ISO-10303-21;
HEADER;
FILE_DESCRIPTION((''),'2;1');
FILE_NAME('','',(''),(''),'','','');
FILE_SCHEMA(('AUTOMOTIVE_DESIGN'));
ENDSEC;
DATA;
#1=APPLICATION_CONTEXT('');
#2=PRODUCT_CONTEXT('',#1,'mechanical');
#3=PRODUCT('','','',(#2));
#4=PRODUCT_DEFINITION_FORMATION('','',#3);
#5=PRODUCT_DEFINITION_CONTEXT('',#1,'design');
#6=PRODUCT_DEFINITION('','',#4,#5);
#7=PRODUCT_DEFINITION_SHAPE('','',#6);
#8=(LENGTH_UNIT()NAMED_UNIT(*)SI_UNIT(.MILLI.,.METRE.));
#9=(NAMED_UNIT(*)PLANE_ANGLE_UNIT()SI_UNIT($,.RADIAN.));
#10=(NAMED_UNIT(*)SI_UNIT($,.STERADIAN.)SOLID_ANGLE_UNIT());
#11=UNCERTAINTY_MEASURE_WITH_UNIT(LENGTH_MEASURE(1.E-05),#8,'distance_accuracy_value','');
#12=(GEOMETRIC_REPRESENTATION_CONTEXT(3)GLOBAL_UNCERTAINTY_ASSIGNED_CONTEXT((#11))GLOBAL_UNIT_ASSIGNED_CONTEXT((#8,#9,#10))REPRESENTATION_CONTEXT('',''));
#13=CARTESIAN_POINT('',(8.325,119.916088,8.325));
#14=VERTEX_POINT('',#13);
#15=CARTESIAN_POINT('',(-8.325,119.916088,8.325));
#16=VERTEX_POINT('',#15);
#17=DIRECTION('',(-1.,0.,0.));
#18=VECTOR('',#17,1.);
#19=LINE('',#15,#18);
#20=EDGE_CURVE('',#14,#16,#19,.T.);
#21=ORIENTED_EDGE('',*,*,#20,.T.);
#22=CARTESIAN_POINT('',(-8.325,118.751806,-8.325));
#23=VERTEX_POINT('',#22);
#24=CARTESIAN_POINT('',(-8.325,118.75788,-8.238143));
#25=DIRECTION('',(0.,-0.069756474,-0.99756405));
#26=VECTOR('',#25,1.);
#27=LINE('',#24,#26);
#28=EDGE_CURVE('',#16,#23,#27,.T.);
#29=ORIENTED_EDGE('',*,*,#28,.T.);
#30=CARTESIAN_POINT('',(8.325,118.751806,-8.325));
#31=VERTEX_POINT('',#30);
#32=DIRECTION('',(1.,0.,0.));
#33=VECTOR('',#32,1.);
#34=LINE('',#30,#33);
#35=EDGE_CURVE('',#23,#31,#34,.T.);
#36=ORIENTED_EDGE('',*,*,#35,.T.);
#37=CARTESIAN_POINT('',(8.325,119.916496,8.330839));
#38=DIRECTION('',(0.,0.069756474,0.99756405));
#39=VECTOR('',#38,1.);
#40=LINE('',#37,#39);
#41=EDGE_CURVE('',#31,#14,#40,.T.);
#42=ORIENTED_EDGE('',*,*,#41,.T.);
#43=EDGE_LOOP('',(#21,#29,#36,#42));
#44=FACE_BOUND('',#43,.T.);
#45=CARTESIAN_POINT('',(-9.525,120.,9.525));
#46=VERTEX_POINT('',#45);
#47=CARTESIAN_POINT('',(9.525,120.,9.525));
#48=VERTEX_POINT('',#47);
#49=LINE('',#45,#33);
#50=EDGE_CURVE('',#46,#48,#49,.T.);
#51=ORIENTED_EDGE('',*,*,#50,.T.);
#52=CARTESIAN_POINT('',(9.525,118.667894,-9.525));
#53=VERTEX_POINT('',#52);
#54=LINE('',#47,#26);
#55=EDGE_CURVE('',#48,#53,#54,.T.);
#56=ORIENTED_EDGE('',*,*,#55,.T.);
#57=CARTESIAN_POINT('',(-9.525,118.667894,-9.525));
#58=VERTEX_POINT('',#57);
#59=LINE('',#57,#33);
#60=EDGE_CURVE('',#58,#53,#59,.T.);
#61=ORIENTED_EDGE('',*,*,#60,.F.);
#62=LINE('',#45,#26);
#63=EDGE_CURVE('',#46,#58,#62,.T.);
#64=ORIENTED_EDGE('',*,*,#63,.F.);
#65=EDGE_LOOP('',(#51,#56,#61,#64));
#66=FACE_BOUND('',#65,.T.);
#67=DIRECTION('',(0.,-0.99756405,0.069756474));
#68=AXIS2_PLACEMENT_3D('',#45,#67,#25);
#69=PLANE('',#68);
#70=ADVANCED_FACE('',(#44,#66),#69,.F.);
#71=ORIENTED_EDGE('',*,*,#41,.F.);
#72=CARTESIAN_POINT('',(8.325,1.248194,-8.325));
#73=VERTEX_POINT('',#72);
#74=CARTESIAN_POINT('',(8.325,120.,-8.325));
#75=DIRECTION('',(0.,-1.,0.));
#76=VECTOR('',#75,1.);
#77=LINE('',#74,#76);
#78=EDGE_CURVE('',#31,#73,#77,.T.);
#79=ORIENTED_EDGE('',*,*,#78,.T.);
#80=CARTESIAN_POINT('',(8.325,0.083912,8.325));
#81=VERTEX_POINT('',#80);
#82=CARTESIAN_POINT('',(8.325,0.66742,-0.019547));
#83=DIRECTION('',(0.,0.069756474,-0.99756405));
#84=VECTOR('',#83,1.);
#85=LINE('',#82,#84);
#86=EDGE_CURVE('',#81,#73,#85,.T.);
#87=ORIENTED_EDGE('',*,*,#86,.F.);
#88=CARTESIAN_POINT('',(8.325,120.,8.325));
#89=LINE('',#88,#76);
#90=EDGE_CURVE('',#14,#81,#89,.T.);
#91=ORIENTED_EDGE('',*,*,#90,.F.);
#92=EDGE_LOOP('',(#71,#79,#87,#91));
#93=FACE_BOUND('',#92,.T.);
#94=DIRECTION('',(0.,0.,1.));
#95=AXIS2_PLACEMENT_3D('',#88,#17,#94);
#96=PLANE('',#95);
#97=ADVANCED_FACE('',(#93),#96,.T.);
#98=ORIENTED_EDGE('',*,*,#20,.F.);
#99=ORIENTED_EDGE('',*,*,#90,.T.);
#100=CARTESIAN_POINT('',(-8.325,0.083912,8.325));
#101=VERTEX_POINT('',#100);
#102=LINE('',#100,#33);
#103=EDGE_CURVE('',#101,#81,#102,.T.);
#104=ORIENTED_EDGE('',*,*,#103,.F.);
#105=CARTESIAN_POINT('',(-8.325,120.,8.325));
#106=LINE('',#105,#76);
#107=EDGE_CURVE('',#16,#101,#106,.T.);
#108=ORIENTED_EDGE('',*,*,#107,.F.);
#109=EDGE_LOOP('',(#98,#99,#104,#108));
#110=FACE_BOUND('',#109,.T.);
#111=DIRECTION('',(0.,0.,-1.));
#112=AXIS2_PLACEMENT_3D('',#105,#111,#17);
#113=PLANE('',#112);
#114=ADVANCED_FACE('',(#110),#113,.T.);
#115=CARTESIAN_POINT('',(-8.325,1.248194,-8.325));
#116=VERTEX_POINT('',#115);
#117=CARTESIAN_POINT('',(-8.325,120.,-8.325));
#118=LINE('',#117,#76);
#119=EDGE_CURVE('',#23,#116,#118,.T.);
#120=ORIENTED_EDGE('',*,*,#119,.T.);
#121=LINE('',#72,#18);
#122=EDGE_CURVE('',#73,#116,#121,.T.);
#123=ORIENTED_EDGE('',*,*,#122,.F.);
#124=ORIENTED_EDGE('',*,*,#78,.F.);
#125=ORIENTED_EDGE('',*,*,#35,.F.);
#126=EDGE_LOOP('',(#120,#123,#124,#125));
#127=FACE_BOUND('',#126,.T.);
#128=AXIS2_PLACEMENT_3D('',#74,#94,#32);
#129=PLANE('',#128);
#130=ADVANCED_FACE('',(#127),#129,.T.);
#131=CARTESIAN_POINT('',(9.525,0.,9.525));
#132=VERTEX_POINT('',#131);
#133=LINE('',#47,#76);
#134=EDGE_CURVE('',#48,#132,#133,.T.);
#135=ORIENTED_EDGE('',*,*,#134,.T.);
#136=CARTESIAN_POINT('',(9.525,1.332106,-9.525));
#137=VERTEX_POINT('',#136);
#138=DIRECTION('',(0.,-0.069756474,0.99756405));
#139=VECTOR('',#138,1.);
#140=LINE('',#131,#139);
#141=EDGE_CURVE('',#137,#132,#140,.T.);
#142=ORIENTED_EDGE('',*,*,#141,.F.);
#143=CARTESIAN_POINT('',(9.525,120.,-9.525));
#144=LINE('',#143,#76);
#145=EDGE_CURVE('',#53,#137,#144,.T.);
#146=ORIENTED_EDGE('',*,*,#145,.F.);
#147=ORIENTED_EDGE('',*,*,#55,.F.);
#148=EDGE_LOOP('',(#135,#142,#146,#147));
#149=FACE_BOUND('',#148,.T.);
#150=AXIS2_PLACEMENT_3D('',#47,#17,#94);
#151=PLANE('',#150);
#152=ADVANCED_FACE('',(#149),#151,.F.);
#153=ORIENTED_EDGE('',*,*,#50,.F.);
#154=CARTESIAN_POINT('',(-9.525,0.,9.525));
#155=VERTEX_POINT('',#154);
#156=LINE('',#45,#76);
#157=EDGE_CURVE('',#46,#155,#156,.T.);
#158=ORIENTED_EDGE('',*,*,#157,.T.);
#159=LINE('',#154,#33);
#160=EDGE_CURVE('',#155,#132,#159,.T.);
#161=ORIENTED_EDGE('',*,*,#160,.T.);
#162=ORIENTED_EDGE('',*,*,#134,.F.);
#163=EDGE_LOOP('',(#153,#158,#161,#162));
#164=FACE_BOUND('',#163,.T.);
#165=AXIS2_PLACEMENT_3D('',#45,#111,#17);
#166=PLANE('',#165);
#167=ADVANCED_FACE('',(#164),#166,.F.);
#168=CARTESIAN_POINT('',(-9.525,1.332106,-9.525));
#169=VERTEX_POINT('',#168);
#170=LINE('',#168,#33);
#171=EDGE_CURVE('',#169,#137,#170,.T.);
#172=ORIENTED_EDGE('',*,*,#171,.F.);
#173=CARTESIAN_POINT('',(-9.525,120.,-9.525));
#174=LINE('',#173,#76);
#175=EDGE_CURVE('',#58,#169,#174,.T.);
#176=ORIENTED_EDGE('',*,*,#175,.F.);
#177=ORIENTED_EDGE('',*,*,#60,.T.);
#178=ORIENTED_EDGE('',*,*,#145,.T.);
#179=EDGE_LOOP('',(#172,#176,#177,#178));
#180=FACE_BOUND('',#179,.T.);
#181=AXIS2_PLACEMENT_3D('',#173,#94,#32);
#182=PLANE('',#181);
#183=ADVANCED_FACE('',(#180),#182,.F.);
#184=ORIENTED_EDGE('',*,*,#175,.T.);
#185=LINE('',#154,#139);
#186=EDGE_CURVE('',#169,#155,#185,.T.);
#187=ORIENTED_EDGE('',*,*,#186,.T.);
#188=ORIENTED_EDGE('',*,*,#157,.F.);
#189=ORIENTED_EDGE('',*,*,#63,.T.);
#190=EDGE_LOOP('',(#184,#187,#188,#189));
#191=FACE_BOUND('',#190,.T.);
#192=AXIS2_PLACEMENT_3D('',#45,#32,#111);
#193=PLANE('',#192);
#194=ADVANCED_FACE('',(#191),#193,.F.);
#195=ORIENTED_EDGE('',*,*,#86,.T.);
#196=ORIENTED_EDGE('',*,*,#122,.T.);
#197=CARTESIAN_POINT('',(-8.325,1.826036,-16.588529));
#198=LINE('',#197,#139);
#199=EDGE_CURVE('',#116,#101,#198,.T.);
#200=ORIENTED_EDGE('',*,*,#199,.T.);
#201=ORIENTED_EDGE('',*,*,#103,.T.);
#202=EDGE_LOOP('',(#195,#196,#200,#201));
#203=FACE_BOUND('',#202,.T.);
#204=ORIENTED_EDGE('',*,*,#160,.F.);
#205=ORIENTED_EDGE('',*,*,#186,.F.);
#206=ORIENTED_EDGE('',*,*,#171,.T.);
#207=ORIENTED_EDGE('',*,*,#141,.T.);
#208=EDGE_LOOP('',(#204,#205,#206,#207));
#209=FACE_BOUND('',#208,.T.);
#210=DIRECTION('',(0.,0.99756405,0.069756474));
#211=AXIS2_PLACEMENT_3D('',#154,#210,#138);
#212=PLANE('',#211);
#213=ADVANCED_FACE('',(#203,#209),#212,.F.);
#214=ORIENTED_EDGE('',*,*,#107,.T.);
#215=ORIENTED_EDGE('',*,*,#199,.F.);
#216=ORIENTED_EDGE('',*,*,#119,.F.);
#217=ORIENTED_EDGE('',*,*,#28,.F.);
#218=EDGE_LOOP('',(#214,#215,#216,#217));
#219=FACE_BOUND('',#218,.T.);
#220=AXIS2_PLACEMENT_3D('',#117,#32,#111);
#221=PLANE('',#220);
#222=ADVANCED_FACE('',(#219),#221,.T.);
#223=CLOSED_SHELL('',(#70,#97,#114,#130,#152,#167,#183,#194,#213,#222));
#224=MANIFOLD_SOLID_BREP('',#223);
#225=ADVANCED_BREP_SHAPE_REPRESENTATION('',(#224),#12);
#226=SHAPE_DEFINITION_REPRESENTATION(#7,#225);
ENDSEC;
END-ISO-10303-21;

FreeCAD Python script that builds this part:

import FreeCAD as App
import Part
import Sketcher
from FreeCAD import Vector
Q = App.Units.Quantity

doc = App.newDocument("Part")
body = doc.addObject("PartDesign::Body", "Body")

sketch1 = doc.addObject("Sketcher::SketchObject", "Sketch")
body.addObject(sketch1)
sketch1.AttachmentSupport = (doc.XZ_Plane, [""])
sketch1.MapMode = "FlatFace"
sketch1.addGeometry(Part.LineSegment(Vector(-10, -10, 0), Vector(-10, 10, 0)), False)
sketch1.addGeometry(Part.LineSegment(Vector(-10, 10, 0), Vector(10, 10, 0)), False)
sketch1.addGeometry(Part.LineSegment(Vector(10, 10, 0), Vector(10, -10, 0)), False)
sketch1.addGeometry(Part.LineSegment(Vector(10, -10, 0), Vector(-10, -10, 0)), False)
sketch1.addConstraint(Sketcher.Constraint("Coincident", 0, 2, 1, 1))
sketch1.addConstraint(Sketcher.Constraint("Coincident", 1, 2, 2, 1))
sketch1.addConstraint(Sketcher.Constraint("Coincident", 2, 2, 3, 1))
sketch1.addConstraint(Sketcher.Constraint("Coincident", 3, 2, 0, 1))
sketch1.addConstraint(Sketcher.Constraint("Vertical", 0))
sketch1.addConstraint(Sketcher.Constraint("Horizontal", 1))
sketch1.addConstraint(Sketcher.Constraint("Vertical", 2))
sketch1.addConstraint(Sketcher.Constraint("Horizontal", 3))
sketch1.addConstraint(Sketcher.Constraint("Symmetric", 0, 2, 2, 2, -1, 1))
sketch1.addConstraint(Sketcher.Constraint("Equal", 3, 0))
sketch1.addConstraint(Sketcher.Constraint("DistanceX", 1, 1, 1, 2, Q("19.05 mm")))
pad1 = doc.addObject("PartDesign::Pad", "Pad")
body.addObject(pad1)
pad1.Profile = sketch1
pad1.Length = 120
pad1.Reversed = True

sketch2 = doc.addObject("Sketcher::SketchObject", "Sketch001")
body.addObject(sketch2)
sketch2.AttachmentSupport = (doc.XZ_Plane, [""])
sketch2.MapMode = "FlatFace"
sketch2.addGeometry(Part.LineSegment(Vector(-8, -8, 0), Vector(-8, 8, 0)), False)
sketch2.addGeometry(Part.LineSegment(Vector(-8, 8, 0), Vector(8, 8, 0)), False)
sketch2.addGeometry(Part.LineSegment(Vector(8, 8, 0), Vector(8, -8, 0)), False)
sketch2.addGeometry(Part.LineSegment(Vector(8, -8, 0), Vector(-8, -8, 0)), False)
sketch2.addConstraint(Sketcher.Constraint("Coincident", 0, 2, 1, 1))
sketch2.addConstraint(Sketcher.Constraint("Coincident", 1, 2, 2, 1))
sketch2.addConstraint(Sketcher.Constraint("Coincident", 2, 2, 3, 1))
sketch2.addConstraint(Sketcher.Constraint("Coincident", 3, 2, 0, 1))
sketch2.addConstraint(Sketcher.Constraint("Vertical", 0))
sketch2.addConstraint(Sketcher.Constraint("Horizontal", 1))
sketch2.addConstraint(Sketcher.Constraint("Vertical", 2))
sketch2.addConstraint(Sketcher.Constraint("Horizontal", 3))
sketch2.addConstraint(Sketcher.Constraint("Symmetric", 0, 2, 2, 2, -1, 1))
sketch2.addConstraint(Sketcher.Constraint("Equal", 3, 0))
sketch2.addConstraint(Sketcher.Constraint("DistanceX", 1, 1, 1, 2, Q("16.65 mm")))
pocket1 = doc.addObject("PartDesign::Pocket", "Pocket")
body.addObject(pocket1)
pocket1.Profile = sketch2
pocket1.Type = "ThroughAll"

sketch3 = doc.addObject("Sketcher::SketchObject", "Sketch002")
body.addObject(sketch3)
sketch3.AttachmentSupport = (doc.YZ_Plane, [""])
sketch3.MapMode = "FlatFace"
sketch3.addGeometry(Part.LineSegment(Vector(120, 9.5, 0), Vector(118.7, -9.5, 0)), False)
sketch3.addGeometry(Part.LineSegment(Vector(118.7, -9.5, 0), Vector(120, -9.5, 0)), False)
sketch3.addGeometry(Part.LineSegment(Vector(120, -9.5, 0), Vector(120, 9.5, 0)), False)
sketch3.addGeometry(Part.LineSegment(Vector(0, 9.5, 0), Vector(0, -9.5, 0)), False)
sketch3.addGeometry(Part.LineSegment(Vector(0, -9.5, 0), Vector(1.3, -9.5, 0)), False)
sketch3.addGeometry(Part.LineSegment(Vector(1.3, -9.5, 0), Vector(0, 9.5, 0)), False)
sketch3.addConstraint(Sketcher.Constraint("Coincident", 0, 2, 1, 1))
sketch3.addConstraint(Sketcher.Constraint("Coincident", 1, 2, 2, 1))
sketch3.addConstraint(Sketcher.Constraint("Coincident", 2, 2, 0, 1))
sketch3.addConstraint(Sketcher.Constraint("Coincident", 3, 2, 4, 1))
sketch3.addConstraint(Sketcher.Constraint("Coincident", 4, 2, 5, 1))
sketch3.addConstraint(Sketcher.Constraint("Coincident", 5, 2, 3, 1))
sketch3.addConstraint(Sketcher.Constraint("Horizontal", 1))
sketch3.addConstraint(Sketcher.Constraint("Vertical", 2))
sketch3.addConstraint(Sketcher.Constraint("Vertical", 3))
sketch3.addConstraint(Sketcher.Constraint("Horizontal", 4))
sketch3.addConstraint(Sketcher.Constraint("Symmetric", 3, 2, 5, 2, -1, 1))
sketch3.addConstraint(Sketcher.Constraint("Horizontal", 1, 2, 3, 2))
sketch3.addConstraint(Sketcher.Constraint("Horizontal", 2, 2, 5, 2))
sketch3.addConstraint(Sketcher.Constraint("Equal", 1, 4))
sketch3.addConstraint(Sketcher.Constraint("Angle", 0, Q("-94 deg")))
sketch3.addConstraint(Sketcher.Constraint("DistanceX", -1, 1, 1, 2, Q("120 mm")))
sketch3.addConstraint(Sketcher.Constraint("DistanceY", 2, 1, 2, 2, Q("19.05 mm")))
pocket2 = doc.addObject("PartDesign::Pocket", "Pocket001")
body.addObject(pocket2)
pocket2.Profile = sketch3
pocket2.Type = "ThroughAll"
pocket2.Midplane = True

doc.recompute()
